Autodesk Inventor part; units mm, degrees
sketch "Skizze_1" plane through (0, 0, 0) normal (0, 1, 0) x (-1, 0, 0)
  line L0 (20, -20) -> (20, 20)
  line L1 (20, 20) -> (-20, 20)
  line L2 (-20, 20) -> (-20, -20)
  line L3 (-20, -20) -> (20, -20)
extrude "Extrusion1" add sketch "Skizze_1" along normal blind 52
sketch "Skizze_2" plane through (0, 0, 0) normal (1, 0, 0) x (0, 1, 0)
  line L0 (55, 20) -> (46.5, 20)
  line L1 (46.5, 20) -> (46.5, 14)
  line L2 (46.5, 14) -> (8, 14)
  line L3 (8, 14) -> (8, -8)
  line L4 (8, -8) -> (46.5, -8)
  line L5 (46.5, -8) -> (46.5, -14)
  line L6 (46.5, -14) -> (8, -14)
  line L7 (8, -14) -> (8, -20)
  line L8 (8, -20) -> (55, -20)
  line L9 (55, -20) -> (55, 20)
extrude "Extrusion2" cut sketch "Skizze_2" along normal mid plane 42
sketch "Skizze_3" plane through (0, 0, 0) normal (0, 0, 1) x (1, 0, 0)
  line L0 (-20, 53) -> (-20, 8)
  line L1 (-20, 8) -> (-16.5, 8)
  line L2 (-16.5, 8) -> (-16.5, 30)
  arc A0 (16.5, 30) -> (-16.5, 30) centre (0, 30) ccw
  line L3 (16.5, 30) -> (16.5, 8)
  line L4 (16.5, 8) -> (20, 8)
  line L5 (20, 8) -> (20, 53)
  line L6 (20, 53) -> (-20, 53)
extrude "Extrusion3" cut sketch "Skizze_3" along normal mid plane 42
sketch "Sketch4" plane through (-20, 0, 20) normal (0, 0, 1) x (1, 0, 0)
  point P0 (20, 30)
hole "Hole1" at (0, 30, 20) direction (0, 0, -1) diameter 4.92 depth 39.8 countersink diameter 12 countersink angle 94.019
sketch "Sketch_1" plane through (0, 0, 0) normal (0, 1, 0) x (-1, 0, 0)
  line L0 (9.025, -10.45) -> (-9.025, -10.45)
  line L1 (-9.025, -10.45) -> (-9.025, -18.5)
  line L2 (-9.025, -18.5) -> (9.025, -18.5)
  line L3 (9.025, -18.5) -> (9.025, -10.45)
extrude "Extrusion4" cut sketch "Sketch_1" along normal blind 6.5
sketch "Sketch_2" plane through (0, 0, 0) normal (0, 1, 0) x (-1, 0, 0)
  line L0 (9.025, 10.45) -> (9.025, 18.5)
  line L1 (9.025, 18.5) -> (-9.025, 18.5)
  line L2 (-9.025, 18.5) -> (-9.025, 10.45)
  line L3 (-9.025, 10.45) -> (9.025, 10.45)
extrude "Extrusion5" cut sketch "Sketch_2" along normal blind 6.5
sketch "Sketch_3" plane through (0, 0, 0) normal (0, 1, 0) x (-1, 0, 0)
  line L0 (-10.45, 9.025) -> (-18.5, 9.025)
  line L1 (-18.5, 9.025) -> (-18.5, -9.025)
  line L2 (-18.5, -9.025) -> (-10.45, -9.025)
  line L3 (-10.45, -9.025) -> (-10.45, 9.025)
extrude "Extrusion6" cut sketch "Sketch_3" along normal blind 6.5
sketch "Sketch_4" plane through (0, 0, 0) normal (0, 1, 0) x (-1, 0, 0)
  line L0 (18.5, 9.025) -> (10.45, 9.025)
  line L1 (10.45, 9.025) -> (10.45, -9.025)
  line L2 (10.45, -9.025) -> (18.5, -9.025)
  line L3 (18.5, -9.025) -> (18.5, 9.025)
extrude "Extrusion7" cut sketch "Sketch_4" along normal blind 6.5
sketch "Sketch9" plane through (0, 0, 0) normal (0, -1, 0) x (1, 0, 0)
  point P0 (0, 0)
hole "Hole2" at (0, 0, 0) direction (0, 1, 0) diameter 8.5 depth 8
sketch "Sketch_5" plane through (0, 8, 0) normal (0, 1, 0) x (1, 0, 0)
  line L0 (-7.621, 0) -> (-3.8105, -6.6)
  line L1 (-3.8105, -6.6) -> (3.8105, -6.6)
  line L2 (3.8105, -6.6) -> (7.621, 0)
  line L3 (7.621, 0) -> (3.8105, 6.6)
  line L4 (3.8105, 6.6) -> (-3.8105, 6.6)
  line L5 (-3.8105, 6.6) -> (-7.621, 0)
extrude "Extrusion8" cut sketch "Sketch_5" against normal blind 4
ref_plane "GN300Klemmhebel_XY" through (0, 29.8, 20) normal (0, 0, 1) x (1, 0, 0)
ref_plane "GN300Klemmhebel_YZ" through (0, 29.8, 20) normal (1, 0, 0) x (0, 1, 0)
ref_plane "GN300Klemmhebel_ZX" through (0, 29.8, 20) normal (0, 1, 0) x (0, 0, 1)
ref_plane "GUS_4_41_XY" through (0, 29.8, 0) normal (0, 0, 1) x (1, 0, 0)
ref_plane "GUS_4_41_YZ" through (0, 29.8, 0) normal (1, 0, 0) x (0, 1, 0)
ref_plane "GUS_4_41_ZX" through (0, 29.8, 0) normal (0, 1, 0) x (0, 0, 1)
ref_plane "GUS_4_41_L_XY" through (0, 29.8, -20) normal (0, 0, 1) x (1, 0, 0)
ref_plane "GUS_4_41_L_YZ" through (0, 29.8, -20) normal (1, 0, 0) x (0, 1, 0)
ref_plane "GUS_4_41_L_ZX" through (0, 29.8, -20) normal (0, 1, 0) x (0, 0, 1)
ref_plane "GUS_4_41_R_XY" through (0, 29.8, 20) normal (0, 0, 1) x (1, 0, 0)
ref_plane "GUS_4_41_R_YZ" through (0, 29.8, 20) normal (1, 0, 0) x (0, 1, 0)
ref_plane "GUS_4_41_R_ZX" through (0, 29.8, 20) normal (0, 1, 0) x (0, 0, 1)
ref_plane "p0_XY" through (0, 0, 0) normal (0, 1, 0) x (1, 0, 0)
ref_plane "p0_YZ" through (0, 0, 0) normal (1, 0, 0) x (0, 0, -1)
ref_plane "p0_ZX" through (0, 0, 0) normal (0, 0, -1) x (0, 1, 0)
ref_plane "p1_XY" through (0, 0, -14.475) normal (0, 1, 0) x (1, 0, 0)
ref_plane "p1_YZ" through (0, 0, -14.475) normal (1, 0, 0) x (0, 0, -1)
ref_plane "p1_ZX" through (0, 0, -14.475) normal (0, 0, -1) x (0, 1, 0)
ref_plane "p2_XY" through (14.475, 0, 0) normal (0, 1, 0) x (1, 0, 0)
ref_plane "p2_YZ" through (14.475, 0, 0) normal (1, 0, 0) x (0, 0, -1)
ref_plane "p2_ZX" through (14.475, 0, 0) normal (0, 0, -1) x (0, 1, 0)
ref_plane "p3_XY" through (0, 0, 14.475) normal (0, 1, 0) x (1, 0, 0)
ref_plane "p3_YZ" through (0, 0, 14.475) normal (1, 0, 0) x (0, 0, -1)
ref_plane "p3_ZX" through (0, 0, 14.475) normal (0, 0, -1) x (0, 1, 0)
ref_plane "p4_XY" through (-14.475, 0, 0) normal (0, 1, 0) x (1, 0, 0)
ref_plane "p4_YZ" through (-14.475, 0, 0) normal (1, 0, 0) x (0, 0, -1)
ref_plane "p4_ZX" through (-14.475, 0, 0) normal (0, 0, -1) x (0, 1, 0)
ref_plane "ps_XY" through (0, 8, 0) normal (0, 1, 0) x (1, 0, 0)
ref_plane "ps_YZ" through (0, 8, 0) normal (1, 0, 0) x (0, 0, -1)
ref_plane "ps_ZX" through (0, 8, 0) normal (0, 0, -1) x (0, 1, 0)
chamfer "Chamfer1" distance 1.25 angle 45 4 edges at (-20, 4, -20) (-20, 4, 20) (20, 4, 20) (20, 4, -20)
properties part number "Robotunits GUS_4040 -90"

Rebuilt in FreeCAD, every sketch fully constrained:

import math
import FreeCAD as App
import Part
import Sketcher
from FreeCAD import Vector
Q = App.Units.Quantity


def edges_at(feature, points):
    """Names of the edges that pass closest to the given points."""
    edges = feature.Shape.Edges
    near = lambda p: min(range(len(edges)), key=lambda i: edges[i].distToShape(Part.Vertex(*p))[0])
    return sorted({f"Edge{near(p) + 1}" for p in points})


def add_polygon(sketch, points):
    """Adds a closed chain of lines whose ends are joined by coincident constraints."""
    first, n = sketch.GeometryCount, len(points)
    for a, b in zip(points, points[1:] + points[:1]):
        sketch.addGeometry(Part.LineSegment(App.Vector(*a, 0), App.Vector(*b, 0)), False)
    for i in range(n):
        sketch.addConstraint(Sketcher.Constraint("Coincident", first + i, 2, first + (i + 1) % n, 1))

doc = App.newDocument("Part")
params = doc.addObject("Spreadsheet::Sheet", "Params")
for row, (alias, value) in enumerate([
    ("sketch1_width", "40 mm"),
    ("pad1_length", "52 mm"),
    ("sketch2_width", "47 mm"),
    ("sketch2_height", "40 mm"),
    ("sketch2_height2", "6 mm"),
    ("sketch2_width2", "8.5 mm"),
    ("pocket1_length", "42 mm"),
    ("sketch3_radius", "16.5 mm"),
    ("sketch3_width", "40 mm"),
    ("sketch3_height", "45 mm"),
    ("sketch3_height2", "22 mm"),
    ("pocket2_length", "42 mm"),
    ("sketch4_diameter", "4.92 mm"),
    ("hole_diameter", "4.92 mm"),
    ("hole_depth", "39.8 mm"),
    ("hole_csink_diameter", "12 mm"),
    ("sketch5_width", "18.05 mm"),
    ("sketch5_height", "8.05 mm"),
    ("pocket3_length", "6.5 mm"),
    ("sketch6_width", "18.05 mm"),
    ("sketch6_height", "8.05 mm"),
    ("pocket4_length", "6.5 mm"),
    ("sketch7_width", "8.05 mm"),
    ("sketch7_height", "18.05 mm"),
    ("pocket5_length", "6.5 mm"),
    ("sketch8_width", "8.05 mm"),
    ("sketch8_height", "18.05 mm"),
    ("pocket6_length", "6.5 mm"),
    ("sketch9_diameter", "8.5 mm"),
    ("hole2_diameter", "8.5 mm"),
    ("hole2_depth", "8 mm"),
    ("pocket7_length", "4 mm"),
    ("chamfer_size", "1.25 mm"),
], start=1):
    params.set(f"A{row}", alias)
    params.set(f"B{row}", "=" + value)
    params.setAlias(f"B{row}", alias)

body = doc.addObject("PartDesign::Body", "Body")

# Sketch on XZ plane
sketch1 = body.newObject("Sketcher::SketchObject", "Sketch")
sketch1.AttachmentSupport = (doc.getObject("XZ_Plane"), [""])
sketch1.MapMode = "FlatFace"
add_polygon(sketch1, [(20, -20), (-20, -20), (-20, 20), (20, 20)])  # lines 0-3
sketch1.addConstraint(Sketcher.Constraint("Horizontal", 0))
sketch1.addConstraint(Sketcher.Constraint("Vertical", 1))
sketch1.addConstraint(Sketcher.Constraint("Horizontal", 2))
sketch1.addConstraint(Sketcher.Constraint("Vertical", 3))
sketch1.addConstraint(Sketcher.Constraint("Symmetric", 0, 2, 2, 2, -1, 1))
sketch1.addConstraint(Sketcher.Constraint("Equal", 2, 1))
sketch1.addConstraint(Sketcher.Constraint("DistanceX", 0, 2, 0, 1, Q("40 mm")))
sketch1.setExpression("Constraints[10]", "Params.sketch1_width")
pad1 = body.newObject("PartDesign::Pad", "Pad")
pad1.Profile = sketch1
pad1.setExpression("Length", "Params.pad1_length")
pad1.Reversed = True

# Sketch on YZ plane
sketch2 = body.newObject("Sketcher::SketchObject", "Sketch001")
sketch2.AttachmentSupport = (doc.getObject("YZ_Plane"), [""])
sketch2.MapMode = "FlatFace"
add_polygon(sketch2, [(55, -20), (55, 20), (46, 20), (46, 14), (8, 14), (8, -8), (46, -8), (46, -14), (8, -14), (8, -20)])  # lines 0-9
sketch2.addConstraint(Sketcher.Constraint("Vertical", 0))
sketch2.addConstraint(Sketcher.Constraint("Horizontal", 1))
sketch2.addConstraint(Sketcher.Constraint("Vertical", 2))
sketch2.addConstraint(Sketcher.Constraint("Horizontal", 3))
sketch2.addConstraint(Sketcher.Constraint("Vertical", 4))
sketch2.addConstraint(Sketcher.Constraint("Horizontal", 5))
sketch2.addConstraint(Sketcher.Constraint("Vertical", 6))
sketch2.addConstraint(Sketcher.Constraint("Horizontal", 7))
sketch2.addConstraint(Sketcher.Constraint("Vertical", 8))
sketch2.addConstraint(Sketcher.Constraint("Horizontal", 9))
sketch2.addConstraint(Sketcher.Constraint("Symmetric", 2, 2, 6, 2, -1))
sketch2.addConstraint(Sketcher.Constraint("Vertical", 4, 2, 7, 2))
sketch2.addConstraint(Sketcher.Constraint("Equal", 2, 6))
sketch2.addConstraint(Sketcher.Constraint("Equal", 6, 8))
sketch2.addConstraint(Sketcher.Constraint("DistanceX", 9, 1, 9, 2, Q("47 mm")))
sketch2.addConstraint(Sketcher.Constraint("DistanceY", 0, 1, 0, 2, Q("40 mm")))
sketch2.addConstraint(Sketcher.Constraint("DistanceY", 2, 2, 2, 1, Q("6 mm")))
sketch2.addConstraint(Sketcher.Constraint("DistanceX", 1, 2, 1, 1, Q("8.5 mm")))
sketch2.addConstraint(Sketcher.Constraint("DistanceX", -1, 1, 0, 2, Q("55 mm")))
sketch2.setExpression("Constraints[24]", "Params.sketch2_width")
sketch2.setExpression("Constraints[25]", "Params.sketch2_height")
sketch2.setExpression("Constraints[26]", "Params.sketch2_height2")
sketch2.setExpression("Constraints[27]", "Params.sketch2_width2")
pocket1 = body.newObject("PartDesign::Pocket", "Pocket")
pocket1.Profile = sketch2
pocket1.setExpression("Length", "Params.pocket1_length")
pocket1.Midplane = True

# Sketch on XY plane
sketch3 = body.newObject("Sketcher::SketchObject", "Sketch002")
sketch3.AttachmentSupport = (doc.getObject("XY_Plane"), [""])
sketch3.MapMode = "FlatFace"
sketch3.addGeometry(Part.LineSegment(Vector(20, 53, 0), Vector(-20, 53, 0)), False)
sketch3.addGeometry(Part.LineSegment(Vector(-20, 53, 0), Vector(-20, 8, 0)), False)
sketch3.addGeometry(Part.LineSegment(Vector(-20, 8, 0), Vector(-16.5, 8, 0)), False)
sketch3.addGeometry(Part.LineSegment(Vector(-16.5, 8, 0), Vector(-16.5, 30, 0)), False)
sketch3.addGeometry(Part.ArcOfCircle(Part.Circle(Vector(0, 30, 0), Vector(0, 0, 1), 16.5), math.radians(0), math.radians(180)), False)
sketch3.addGeometry(Part.LineSegment(Vector(16.5, 30, 0), Vector(16.5, 8, 0)), False)
sketch3.addGeometry(Part.LineSegment(Vector(16.5, 8, 0), Vector(20, 8, 0)), False)
sketch3.addGeometry(Part.LineSegment(Vector(20, 8, 0), Vector(20, 53, 0)), False)
sketch3.addConstraint(Sketcher.Constraint("Coincident", 0, 2, 1, 1))
sketch3.addConstraint(Sketcher.Constraint("Coincident", 1, 2, 2, 1))
sketch3.addConstraint(Sketcher.Constraint("Coincident", 2, 2, 3, 1))
sketch3.addConstraint(Sketcher.Constraint("Tangent", 3, 2, 4, 2))
sketch3.addConstraint(Sketcher.Constraint("Tangent", 4, 1, 5, 1))
sketch3.addConstraint(Sketcher.Constraint("Coincident", 5, 2, 6, 1))
sketch3.addConstraint(Sketcher.Constraint("Coincident", 6, 2, 7, 1))
sketch3.addConstraint(Sketcher.Constraint("Coincident", 7, 2, 0, 1))
sketch3.addConstraint(Sketcher.Constraint("Horizontal", 0))
sketch3.addConstraint(Sketcher.Constraint("Vertical", 1))
sketch3.addConstraint(Sketcher.Constraint("Horizontal", 2))
sketch3.addConstraint(Sketcher.Constraint("Vertical", 3))
sketch3.addConstraint(Sketcher.Constraint("Vertical", 5))
sketch3.addConstraint(Sketcher.Constraint("Horizontal", 6))
sketch3.addConstraint(Sketcher.Constraint("Vertical", 7))
sketch3.addConstraint(Sketcher.Constraint("Symmetric", 2, 2, 5, 2, -2))
sketch3.addConstraint(Sketcher.Constraint("Equal", 2, 6))
sketch3.addConstraint(Sketcher.Constraint("Radius", 4, Q("16.5 mm")))
sketch3.addConstraint(Sketcher.Constraint("DistanceX", 0, 2, 0, 1, Q("40 mm")))
sketch3.addConstraint(Sketcher.Constraint("DistanceY", 1, 2, 1, 1, Q("45 mm")))
sketch3.addConstraint(Sketcher.Constraint("DistanceY", 3, 1, 3, 2, Q("22 mm")))
sketch3.addConstraint(Sketcher.Constraint("DistanceY", -1, 1, 4, 3, Q("30 mm")))
sketch3.setExpression("Constraints[17]", "Params.sketch3_radius")
sketch3.setExpression("Constraints[18]", "Params.sketch3_width")
sketch3.setExpression("Constraints[19]", "Params.sketch3_height")
sketch3.setExpression("Constraints[20]", "Params.sketch3_height2")
pocket2 = body.newObject("PartDesign::Pocket", "Pocket001")
pocket2.Profile = sketch3
pocket2.setExpression("Length", "Params.pocket2_length")
pocket2.Midplane = True

# Sketch on XY plane
sketch4 = body.newObject("Sketcher::SketchObject", "Sketch003")
sketch4.AttachmentSupport = (doc.getObject("XY_Plane"), [""])
sketch4.MapMode = "FlatFace"
sketch4.AttachmentOffset = App.Placement(Vector(0, 0, 20), App.Rotation())
sketch4.addGeometry(Part.Circle(Vector(0, 30, 0), Vector(0, 0, 1), 2.5), False)
sketch4.addConstraint(Sketcher.Constraint("PointOnObject", 0, 3, -2))
sketch4.addConstraint(Sketcher.Constraint("Diameter", 0, Q("4.92 mm")))
sketch4.addConstraint(Sketcher.Constraint("DistanceY", -1, 1, 0, 3, Q("30 mm")))
sketch4.setExpression("Constraints[1]", "Params.sketch4_diameter")
doc.recompute()
hole = body.newObject("PartDesign::Hole", "Hole")
hole.Profile = sketch4
hole.ThreadType = "None"
hole.setExpression("Diameter", "Params.hole_diameter")
hole.DepthType = "Dimension"
hole.setExpression("Depth", "Params.hole_depth")
hole.DrillPoint = "Flat"
hole.HoleCutType = "Countersink"
hole.setExpression("HoleCutDiameter", "Params.hole_csink_diameter")
hole.HoleCutCountersinkAngle = 94.019

# Sketch on XZ plane
sketch5 = body.newObject("Sketcher::SketchObject", "Sketch004")
sketch5.AttachmentSupport = (doc.getObject("XZ_Plane"), [""])
sketch5.MapMode = "FlatFace"
add_polygon(sketch5, [(-9, -18), (-9, -10), (9, -10), (9, -18)])  # lines 0-3
sketch5.addConstraint(Sketcher.Constraint("Vertical", 0))
sketch5.addConstraint(Sketcher.Constraint("Horizontal", 1))
sketch5.addConstraint(Sketcher.Constraint("Vertical", 2))
sketch5.addConstraint(Sketcher.Constraint("Horizontal", 3))
sketch5.addConstraint(Sketcher.Constraint("DistanceX", 1, 1, 1, 2, Q("18.05 mm")))
sketch5.addConstraint(Sketcher.Constraint("DistanceY", 0, 1, 0, 2, Q("8.05 mm")))
sketch5.addConstraint(Sketcher.Constraint("DistanceY", 2, 2, -1, 1, Q("18.5 mm")))
sketch5.addConstraint(Sketcher.Constraint("DistanceX", 0, 2, -1, 1, Q("9.025 mm")))
sketch5.setExpression("Constraints[8]", "Params.sketch5_width")
sketch5.setExpression("Constraints[9]", "Params.sketch5_height")
pocket3 = body.newObject("PartDesign::Pocket", "Pocket002")
pocket3.Profile = sketch5
pocket3.setExpression("Length", "Params.pocket3_length")

# Sketch on XZ plane
sketch6 = body.newObject("Sketcher::SketchObject", "Sketch005")
sketch6.AttachmentSupport = (doc.getObject("XZ_Plane"), [""])
sketch6.MapMode = "FlatFace"
add_polygon(sketch6, [(9, 10), (-9, 10), (-9, 18), (9, 18)])  # lines 0-3
sketch6.addConstraint(Sketcher.Constraint("Horizontal", 0))
sketch6.addConstraint(Sketcher.Constraint("Vertical", 1))
sketch6.addConstraint(Sketcher.Constraint("Horizontal", 2))
sketch6.addConstraint(Sketcher.Constraint("Vertical", 3))
sketch6.addConstraint(Sketcher.Constraint("DistanceX", 0, 2, 0, 1, Q("18.05 mm")))
sketch6.addConstraint(Sketcher.Constraint("DistanceY", 1, 1, 1, 2, Q("8.05 mm")))
sketch6.addConstraint(Sketcher.Constraint("DistanceY", -1, 1, 1, 2, Q("18.5 mm")))
sketch6.addConstraint(Sketcher.Constraint("DistanceX", 0, 2, -1, 1, Q("9.025 mm")))
sketch6.setExpression("Constraints[8]", "Params.sketch6_width")
sketch6.setExpression("Constraints[9]", "Params.sketch6_height")
pocket4 = body.newObject("PartDesign::Pocket", "Pocket003")
pocket4.Profile = sketch6
pocket4.setExpression("Length", "Params.pocket4_length")

# Sketch on XZ plane
sketch7 = body.newObject("Sketcher::SketchObject", "Sketch006")
sketch7.AttachmentSupport = (doc.getObject("XZ_Plane"), [""])
sketch7.MapMode = "FlatFace"
add_polygon(sketch7, [(10, -9), (10, 9), (18, 9), (18, -9)])  # lines 0-3
sketch7.addConstraint(Sketcher.Constraint("Vertical", 0))
sketch7.addConstraint(Sketcher.Constraint("Horizontal", 1))
sketch7.addConstraint(Sketcher.Constraint("Vertical", 2))
sketch7.addConstraint(Sketcher.Constraint("Horizontal", 3))
sketch7.addConstraint(Sketcher.Constraint("DistanceX", 1, 1, 1, 2, Q("8.05 mm")))
sketch7.addConstraint(Sketcher.Constraint("DistanceY", 0, 1, 0, 2, Q("18.05 mm")))
sketch7.addConstraint(Sketcher.Constraint("DistanceX", -1, 1, 1, 2, Q("18.5 mm")))
sketch7.addConstraint(Sketcher.Constraint("DistanceY", -1, 1, 0, 2, Q("9.025 mm")))
sketch7.setExpression("Constraints[8]", "Params.sketch7_width")
sketch7.setExpression("Constraints[9]", "Params.sketch7_height")
pocket5 = body.newObject("PartDesign::Pocket", "Pocket004")
pocket5.Profile = sketch7
pocket5.setExpression("Length", "Params.pocket5_length")

# Sketch on XZ plane
sketch8 = body.newObject("Sketcher::SketchObject", "Sketch007")
sketch8.AttachmentSupport = (doc.getObject("XZ_Plane"), [""])
sketch8.MapMode = "FlatFace"
add_polygon(sketch8, [(-18, -9), (-18, 9), (-10, 9), (-10, -9)])  # lines 0-3
sketch8.addConstraint(Sketcher.Constraint("Vertical", 0))
sketch8.addConstraint(Sketcher.Constraint("Horizontal", 1))
sketch8.addConstraint(Sketcher.Constraint("Vertical", 2))
sketch8.addConstraint(Sketcher.Constraint("Horizontal", 3))
sketch8.addConstraint(Sketcher.Constraint("DistanceX", 1, 1, 1, 2, Q("8.05 mm")))
sketch8.addConstraint(Sketcher.Constraint("DistanceY", 0, 1, 0, 2, Q("18.05 mm")))
sketch8.addConstraint(Sketcher.Constraint("DistanceX", 0, 2, -1, 1, Q("18.5 mm")))
sketch8.addConstraint(Sketcher.Constraint("DistanceY", -1, 1, 0, 2, Q("9.025 mm")))
sketch8.setExpression("Constraints[8]", "Params.sketch8_width")
sketch8.setExpression("Constraints[9]", "Params.sketch8_height")
pocket6 = body.newObject("PartDesign::Pocket", "Pocket005")
pocket6.Profile = sketch8
pocket6.setExpression("Length", "Params.pocket6_length")

# Sketch on XZ plane
sketch9 = body.newObject("Sketcher::SketchObject", "Sketch008")
sketch9.AttachmentSupport = (doc.getObject("XZ_Plane"), [""])
sketch9.MapMode = "FlatFace"
sketch9.addGeometry(Part.Circle(Vector(0, 0, 0), Vector(0, 0, 1), 4.2), False)
sketch9.addConstraint(Sketcher.Constraint("Coincident", 0, 3, -1, 1))
sketch9.addConstraint(Sketcher.Constraint("Diameter", 0, Q("8.5 mm")))
sketch9.setExpression("Constraints[1]", "Params.sketch9_diameter")
doc.recompute()
hole2 = body.newObject("PartDesign::Hole", "Hole001")
hole2.Profile = sketch9
hole2.ThreadType = "None"
hole2.setExpression("Diameter", "Params.hole2_diameter")
hole2.DepthType = "Dimension"
hole2.setExpression("Depth", "Params.hole2_depth")
hole2.DrillPoint = "Flat"

# Sketch on XZ plane
sketch10 = body.newObject("Sketcher::SketchObject", "Sketch009")
sketch10.AttachmentSupport = (doc.getObject("XZ_Plane"), [""])
sketch10.MapMode = "FlatFace"
sketch10.AttachmentOffset = App.Placement(Vector(0, 0, -8), App.Rotation())
add_polygon(sketch10, [(-4, -7), (-8, 0), (-4, 7), (4, 7), (8, 0), (4, -7)])  # lines 0-5
sketch10.addConstraint(Sketcher.Constraint("Horizontal", 2))
sketch10.addConstraint(Sketcher.Constraint("Horizontal", 5))
sketch10.addConstraint(Sketcher.Constraint("Symmetric", 0, 2, 3, 2, -1, 1))
sketch10.addConstraint(Sketcher.Constraint("Symmetric", 1, 2, 4, 2, -1, 1))
sketch10.addConstraint(Sketcher.Constraint("PointOnObject", 0, 2, -1))
sketch10.addConstraint(Sketcher.Constraint("Parallel", 0, 3))
sketch10.addConstraint(Sketcher.Constraint("Vertical", 2, 2, 4, 2))
sketch10.addConstraint(Sketcher.Constraint("Angle", 0, Q("120 deg")))
sketch10.addConstraint(Sketcher.Constraint("DistanceY", -1, 1, 1, 2, Q("6.6 mm")))
sketch10.addConstraint(Sketcher.Constraint("DistanceX", 2, 1, 2, 2, Q("7.621 mm")))
pocket7 = body.newObject("PartDesign::Pocket", "Pocket006")
pocket7.Profile = sketch10
pocket7.setExpression("Length", "Params.pocket7_length")
pocket7.Reversed = True
doc.recompute()

chamfer = body.newObject("PartDesign::Chamfer", "Chamfer")
chamfer.Base = (pocket7, edges_at(pocket7, [
    (-20, 4, -20),
    (-20, 4, 20),
    (20, 4, 20),
    (20, 4, -20),
]))
chamfer.setExpression("Size", "Params.chamfer_size")

doc.recompute()
